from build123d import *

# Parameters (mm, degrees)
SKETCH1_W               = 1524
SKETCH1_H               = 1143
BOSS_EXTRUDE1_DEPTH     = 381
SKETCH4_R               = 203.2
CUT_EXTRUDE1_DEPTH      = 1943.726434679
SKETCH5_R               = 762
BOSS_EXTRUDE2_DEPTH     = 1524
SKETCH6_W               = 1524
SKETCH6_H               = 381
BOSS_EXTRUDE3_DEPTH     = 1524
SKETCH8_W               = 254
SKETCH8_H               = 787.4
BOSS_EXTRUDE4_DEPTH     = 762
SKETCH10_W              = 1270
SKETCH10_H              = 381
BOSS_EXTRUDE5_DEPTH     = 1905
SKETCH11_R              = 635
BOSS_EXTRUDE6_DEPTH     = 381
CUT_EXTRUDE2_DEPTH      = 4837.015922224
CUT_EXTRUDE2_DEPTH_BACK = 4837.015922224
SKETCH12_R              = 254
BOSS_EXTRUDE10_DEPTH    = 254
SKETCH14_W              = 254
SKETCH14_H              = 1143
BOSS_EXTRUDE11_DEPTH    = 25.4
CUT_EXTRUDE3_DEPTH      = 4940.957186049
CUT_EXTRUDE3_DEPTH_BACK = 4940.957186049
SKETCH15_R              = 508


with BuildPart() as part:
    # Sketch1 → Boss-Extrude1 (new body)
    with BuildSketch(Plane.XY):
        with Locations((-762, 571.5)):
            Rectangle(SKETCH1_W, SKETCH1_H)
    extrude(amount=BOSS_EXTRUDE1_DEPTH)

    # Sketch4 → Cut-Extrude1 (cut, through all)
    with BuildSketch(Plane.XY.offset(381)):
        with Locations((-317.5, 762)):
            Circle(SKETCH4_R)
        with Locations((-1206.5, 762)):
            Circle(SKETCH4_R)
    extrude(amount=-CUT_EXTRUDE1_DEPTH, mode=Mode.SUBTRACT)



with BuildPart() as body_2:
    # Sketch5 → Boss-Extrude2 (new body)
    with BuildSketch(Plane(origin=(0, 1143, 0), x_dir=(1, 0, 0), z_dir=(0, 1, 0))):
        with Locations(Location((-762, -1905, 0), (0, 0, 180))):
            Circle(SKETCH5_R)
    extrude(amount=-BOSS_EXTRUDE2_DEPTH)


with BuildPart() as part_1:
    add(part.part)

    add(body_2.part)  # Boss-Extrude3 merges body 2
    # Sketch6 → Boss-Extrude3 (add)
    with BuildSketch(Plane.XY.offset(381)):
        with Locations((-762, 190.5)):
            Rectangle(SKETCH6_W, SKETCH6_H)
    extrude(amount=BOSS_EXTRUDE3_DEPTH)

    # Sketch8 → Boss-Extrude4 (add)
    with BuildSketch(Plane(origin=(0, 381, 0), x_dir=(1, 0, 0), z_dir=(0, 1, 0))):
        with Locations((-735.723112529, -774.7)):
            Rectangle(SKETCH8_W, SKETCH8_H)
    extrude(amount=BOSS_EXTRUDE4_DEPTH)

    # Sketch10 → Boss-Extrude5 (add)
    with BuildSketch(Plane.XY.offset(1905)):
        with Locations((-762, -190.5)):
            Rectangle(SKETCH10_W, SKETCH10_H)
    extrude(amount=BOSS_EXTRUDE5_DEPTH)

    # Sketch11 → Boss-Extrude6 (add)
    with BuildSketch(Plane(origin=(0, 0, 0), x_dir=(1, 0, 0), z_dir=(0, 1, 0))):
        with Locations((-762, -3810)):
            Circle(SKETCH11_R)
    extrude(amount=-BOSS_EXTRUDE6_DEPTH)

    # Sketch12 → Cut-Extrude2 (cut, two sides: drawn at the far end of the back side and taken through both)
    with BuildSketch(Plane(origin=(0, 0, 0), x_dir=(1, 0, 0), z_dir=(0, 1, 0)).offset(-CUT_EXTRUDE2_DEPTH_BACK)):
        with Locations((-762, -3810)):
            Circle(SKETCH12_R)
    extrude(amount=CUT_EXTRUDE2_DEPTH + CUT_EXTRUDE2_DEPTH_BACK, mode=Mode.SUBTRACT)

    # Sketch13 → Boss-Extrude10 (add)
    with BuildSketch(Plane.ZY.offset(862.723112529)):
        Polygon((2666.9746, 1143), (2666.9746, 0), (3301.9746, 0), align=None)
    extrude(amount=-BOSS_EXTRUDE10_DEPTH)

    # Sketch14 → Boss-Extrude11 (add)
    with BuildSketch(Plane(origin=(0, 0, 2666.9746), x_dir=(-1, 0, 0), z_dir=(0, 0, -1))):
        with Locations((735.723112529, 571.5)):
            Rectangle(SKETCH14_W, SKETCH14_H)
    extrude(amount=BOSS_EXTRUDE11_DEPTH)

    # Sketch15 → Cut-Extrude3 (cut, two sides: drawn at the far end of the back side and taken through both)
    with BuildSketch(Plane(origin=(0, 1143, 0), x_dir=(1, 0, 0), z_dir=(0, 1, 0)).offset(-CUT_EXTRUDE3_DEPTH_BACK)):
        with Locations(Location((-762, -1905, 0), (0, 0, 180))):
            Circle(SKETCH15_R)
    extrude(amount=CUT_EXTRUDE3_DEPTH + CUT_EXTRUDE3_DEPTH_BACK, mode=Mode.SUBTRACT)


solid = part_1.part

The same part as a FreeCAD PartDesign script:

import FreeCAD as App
import Part
import Sketcher
from FreeCAD import Vector
Q = App.Units.Quantity


def add_polygon(sketch, points):
    """Adds a closed chain of lines whose ends are joined by coincident constraints."""
    first, n = sketch.GeometryCount, len(points)
    for a, b in zip(points, points[1:] + points[:1]):
        sketch.addGeometry(Part.LineSegment(App.Vector(*a, 0), App.Vector(*b, 0)), False)
    for i in range(n):
        sketch.addConstraint(Sketcher.Constraint("Coincident", first + i, 2, first + (i + 1) % n, 1))

doc = App.newDocument("Part")
body = doc.addObject("PartDesign::Body", "Body")

# Sketch on XY plane
sketch1 = doc.addObject("Sketcher::SketchObject", "Sketch")
body.addObject(sketch1)
sketch1.AttachmentSupport = (doc.XY_Plane, [""])
sketch1.MapMode = "FlatFace"
add_polygon(sketch1, [(-1524, 1143), (-1524, 0), (0, 0), (0, 1143)])  # lines 0-3
sketch1.addConstraint([
    Sketcher.Constraint("Vertical", 0),
    Sketcher.Constraint("Horizontal", 1),
    Sketcher.Constraint("Vertical", 2),
    Sketcher.Constraint("Horizontal", 3),
    Sketcher.Constraint("Coincident", 1, 2, -1, 1),
    Sketcher.Constraint("DistanceX", 1, 1, 1, 2, Q("60 in")),
    Sketcher.Constraint("DistanceY", 0, 2, 0, 1, Q("45 in")),
])
pad1 = doc.addObject("PartDesign::Pad", "Pad")
body.addObject(pad1)
pad1.Profile = sketch1
pad1.Length = Q("15 in")

# Sketch on XY plane
sketch2 = doc.addObject("Sketcher::SketchObject", "Sketch001")
body.addObject(sketch2)
sketch2.AttachmentSupport = (doc.XY_Plane, [""])
sketch2.MapMode = "FlatFace"
sketch2.AttachmentOffset = App.Placement(Vector(0, 0, 15 * 25.4), App.Rotation())
sketch2.addGeometry([
    Part.Circle(Vector(-317.5, 762, 0), Vector(0, 0, 1), 203.2),
    Part.Circle(Vector(-1206.5, 762, 0), Vector(0, 0, 1), 203.2),
], False)
sketch2.addConstraint([
    Sketcher.Constraint("Equal", 0, 1),
    Sketcher.Constraint("Horizontal", 0, 3, 1, 3),
    Sketcher.Constraint("Diameter", 0, Q("16 in")),
    Sketcher.Constraint("DistanceY", -1, 1, 0, 3, Q("30 in")),
    Sketcher.Constraint("DistanceX", 1, 3, 0, 3, Q("35 in")),
    Sketcher.Constraint("DistanceX", 0, 3, -1, 1, Q("12.5 in")),
])
pocket1 = doc.addObject("PartDesign::Pocket", "Pocket")
body.addObject(pocket1)
pocket1.Profile = sketch2
pocket1.Type = "ThroughAll"
body2 = doc.addObject("PartDesign::Body", "Body001")

# Sketch on XZ plane
sketch3 = doc.addObject("Sketcher::SketchObject", "Sketch002")
body2.addObject(sketch3)
sketch3.AttachmentSupport = (doc.getObject("XZ_Plane001"), [""])
sketch3.MapMode = "FlatFace"
sketch3.AttachmentOffset = App.Placement(Vector(0, 0, -45 * 25.4), App.Rotation())
sketch3.addGeometry(Part.Circle(Vector(-762, 1905, 0), Vector(0, 0, 1), 762), False)
sketch3.addConstraint([
    Sketcher.Constraint("Diameter", 0, Q("60 in")),
    Sketcher.Constraint("DistanceX", 0, 3, -1, 1, Q("30 in")),
    Sketcher.Constraint("DistanceY", -1, 1, 0, 3, Q("75 in")),
])
pad2 = doc.addObject("PartDesign::Pad", "Pad001")
body2.addObject(pad2)
pad2.Profile = sketch3
pad2.Length = Q("60 in")
body.AllowCompound = True
doc.recompute()

boolean = doc.addObject("PartDesign::Boolean", "Boolean")
body.addObject(boolean)
boolean.Type = "Fuse"
boolean.addObjects([body2])

# Sketch on XY plane
sketch4 = doc.addObject("Sketcher::SketchObject", "Sketch003")
body.addObject(sketch4)
sketch4.AttachmentSupport = (doc.XY_Plane, [""])
sketch4.MapMode = "FlatFace"
sketch4.AttachmentOffset = App.Placement(Vector(0, 0, 15 * 25.4), App.Rotation())
add_polygon(sketch4, [(-1524, 381), (-1524, 0), (0, 0), (0, 381)])  # lines 0-3
sketch4.addConstraint([
    Sketcher.Constraint("Vertical", 0),
    Sketcher.Constraint("Horizontal", 1),
    Sketcher.Constraint("Vertical", 2),
    Sketcher.Constraint("Horizontal", 3),
    Sketcher.Constraint("Coincident", 1, 2, -1, 1),
    Sketcher.Constraint("DistanceX", 1, 1, 1, 2, Q("60 in")),
    Sketcher.Constraint("DistanceY", 0, 2, 0, 1, Q("15 in")),
])
pad3 = doc.addObject("PartDesign::Pad", "Pad002")
body.addObject(pad3)
pad3.Profile = sketch4
pad3.Length = Q("60 in")

# Sketch on XZ plane
sketch5 = doc.addObject("Sketcher::SketchObject", "Sketch004")
body.addObject(sketch5)
sketch5.AttachmentSupport = (doc.XZ_Plane, [""])
sketch5.MapMode = "FlatFace"
sketch5.AttachmentOffset = App.Placement(Vector(0, 0, -15 * 25.4), App.Rotation())
add_polygon(sketch5, [(-862.723113, 381), (-862.723113, 1168.4), (-608.723113, 1168.4), (-608.723113, 381)])  # lines 0-3
sketch5.addConstraint([
    Sketcher.Constraint("Vertical", 0),
    Sketcher.Constraint("Horizontal", 1),
    Sketcher.Constraint("Vertical", 2),
    Sketcher.Constraint("Horizontal", 3),
    Sketcher.Constraint("DistanceX", 1, 1, 1, 2, Q("10 in")),
    Sketcher.Constraint("DistanceY", 0, 1, 0, 2, Q("31 in")),
    Sketcher.Constraint("DistanceY", -1, 1, 0, 2, Q("46 in")),
    Sketcher.Constraint("DistanceX", 0, 2, -1, 1, Q("862.723113 mm")),
])
pad4 = doc.addObject("PartDesign::Pad", "Pad003")
body.addObject(pad4)
pad4.Profile = sketch5
pad4.Length = Q("30 in")
pad4.Reversed = True

# Sketch on XY plane
sketch6 = doc.addObject("Sketcher::SketchObject", "Sketch005")
body.addObject(sketch6)
sketch6.AttachmentSupport = (doc.XY_Plane, [""])
sketch6.MapMode = "FlatFace"
sketch6.AttachmentOffset = App.Placement(Vector(0, 0, 75 * 25.4), App.Rotation())
add_polygon(sketch6, [(-1397, 0), (-1397, -381), (-127, -381), (-127, 0)])  # lines 0-3
sketch6.addConstraint([
    Sketcher.Constraint("Vertical", 0),
    Sketcher.Constraint("Horizontal", 1),
    Sketcher.Constraint("Vertical", 2),
    Sketcher.Constraint("Horizontal", 3),
    Sketcher.Constraint("PointOnObject", 2, 2, -1),
    Sketcher.Constraint("DistanceX", 1, 1, 1, 2, Q("50 in")),
    Sketcher.Constraint("DistanceY", 0, 2, 0, 1, Q("15 in")),
    Sketcher.Constraint("DistanceX", 0, 2, -1, 1, Q("55 in")),
])
pad5 = doc.addObject("PartDesign::Pad", "Pad004")
body.addObject(pad5)
pad5.Profile = sketch6
pad5.Length = Q("75 in")

# Sketch on XZ plane
sketch7 = doc.addObject("Sketcher::SketchObject", "Sketch006")
body.addObject(sketch7)
sketch7.AttachmentSupport = (doc.XZ_Plane, [""])
sketch7.MapMode = "FlatFace"
sketch7.addGeometry(Part.Circle(Vector(-762, 3810, 0), Vector(0, 0, 1), 635), False)
sketch7.addConstraint([
    Sketcher.Constraint("Diameter", 0, Q("50 in")),
    Sketcher.Constraint("DistanceX", 0, 3, -1, 1, Q("30 in")),
    Sketcher.Constraint("DistanceY", -1, 1, 0, 3, Q("150 in")),
])
pad6 = doc.addObject("PartDesign::Pad", "Pad005")
body.addObject(pad6)
pad6.Profile = sketch7
pad6.Length = Q("15 in")

# Sketch on XZ plane
sketch8 = doc.addObject("Sketcher::SketchObject", "Sketch007")
body.addObject(sketch8)
sketch8.AttachmentSupport = (doc.XZ_Plane, [""])
sketch8.MapMode = "FlatFace"
sketch8.addGeometry(Part.Circle(Vector(-762, 3810, 0), Vector(0, 0, 1), 254), False)
sketch8.addConstraint([
    Sketcher.Constraint("Diameter", 0, Q("20 in")),
    Sketcher.Constraint("DistanceX", 0, 3, -1, 1, Q("30 in")),
    Sketcher.Constraint("DistanceY", -1, 1, 0, 3, Q("150 in")),
])
pocket2 = doc.addObject("PartDesign::Pocket", "Pocket001")
body.addObject(pocket2)
pocket2.Profile = sketch8
pocket2.Type = "ThroughAll"
pocket2.Midplane = True

# Sketch on YZ plane
sketch9 = doc.addObject("Sketcher::SketchObject", "Sketch008")
body.addObject(sketch9)
sketch9.AttachmentSupport = (doc.YZ_Plane, [""])
sketch9.MapMode = "FlatFace"
sketch9.AttachmentOffset = App.Placement(Vector(0, 0, -862.723113), App.Rotation())
add_polygon(sketch9, [(1143, 2666.9746), (0, 2666.9746), (0, 3301.9746)])  # lines 0-2
sketch9.addConstraint([
    Sketcher.Constraint("Horizontal", 0),
    Sketcher.Constraint("Vertical", 1),
    Sketcher.Constraint("PointOnObject", 0, 2, -2),
    Sketcher.Constraint("DistanceX", 0, 2, 0, 1, Q("45 in")),
    Sketcher.Constraint("DistanceY", 1, 1, 1, 2, Q("25 in")),
    Sketcher.Constraint("DistanceY", -1, 1, 0, 2, Q("104.999 in")),
])
pad7 = doc.addObject("PartDesign::Pad", "Pad006")
body.addObject(pad7)
pad7.Profile = sketch9
pad7.Length = Q("10 in")

# Sketch on XY plane
sketch10 = doc.addObject("Sketcher::SketchObject", "Sketch009")
body.addObject(sketch10)
sketch10.AttachmentSupport = (doc.XY_Plane, [""])
sketch10.MapMode = "FlatFace"
sketch10.AttachmentOffset = App.Placement(Vector(0, 0, 104.999 * 25.4), App.Rotation())
add_polygon(sketch10, [(-608.723113, 1143), (-608.723113, 0), (-862.723113, 0), (-862.723113, 1143)])  # lines 0-3
sketch10.addConstraint([
    Sketcher.Constraint("Vertical", 0),
    Sketcher.Constraint("Horizontal", 1),
    Sketcher.Constraint("Vertical", 2),
    Sketcher.Constraint("Horizontal", 3),
    Sketcher.Constraint("PointOnObject", 0, 2, -1),
    Sketcher.Constraint("DistanceX", 1, 2, 1, 1, Q("10 in")),
    Sketcher.Constraint("DistanceY", 0, 2, 0, 1, Q("45 in")),
    Sketcher.Constraint("DistanceX", 0, 2, -1, 1, Q("608.723113 mm")),
])
pad8 = doc.addObject("PartDesign::Pad", "Pad007")
body.addObject(pad8)
pad8.Profile = sketch10
pad8.Length = Q("1 in")
pad8.Reversed = True

# Sketch on XZ plane
sketch11 = doc.addObject("Sketcher::SketchObject", "Sketch010")
body.addObject(sketch11)
sketch11.AttachmentSupport = (doc.XZ_Plane, [""])
sketch11.MapMode = "FlatFace"
sketch11.AttachmentOffset = App.Placement(Vector(0, 0, -45 * 25.4), App.Rotation())
sketch11.addGeometry(Part.Circle(Vector(-762, 1905, 0), Vector(0, 0, 1), 508), False)
sketch11.addConstraint([
    Sketcher.Constraint("Diameter", 0, Q("40 in")),
    Sketcher.Constraint("DistanceX", 0, 3, -1, 1, Q("30 in")),
    Sketcher.Constraint("DistanceY", -1, 1, 0, 3, Q("75 in")),
])
pocket3 = doc.addObject("PartDesign::Pocket", "Pocket002")
body.addObject(pocket3)
pocket3.Profile = sketch11
pocket3.Type = "ThroughAll"
pocket3.Midplane = True

doc.recompute()
